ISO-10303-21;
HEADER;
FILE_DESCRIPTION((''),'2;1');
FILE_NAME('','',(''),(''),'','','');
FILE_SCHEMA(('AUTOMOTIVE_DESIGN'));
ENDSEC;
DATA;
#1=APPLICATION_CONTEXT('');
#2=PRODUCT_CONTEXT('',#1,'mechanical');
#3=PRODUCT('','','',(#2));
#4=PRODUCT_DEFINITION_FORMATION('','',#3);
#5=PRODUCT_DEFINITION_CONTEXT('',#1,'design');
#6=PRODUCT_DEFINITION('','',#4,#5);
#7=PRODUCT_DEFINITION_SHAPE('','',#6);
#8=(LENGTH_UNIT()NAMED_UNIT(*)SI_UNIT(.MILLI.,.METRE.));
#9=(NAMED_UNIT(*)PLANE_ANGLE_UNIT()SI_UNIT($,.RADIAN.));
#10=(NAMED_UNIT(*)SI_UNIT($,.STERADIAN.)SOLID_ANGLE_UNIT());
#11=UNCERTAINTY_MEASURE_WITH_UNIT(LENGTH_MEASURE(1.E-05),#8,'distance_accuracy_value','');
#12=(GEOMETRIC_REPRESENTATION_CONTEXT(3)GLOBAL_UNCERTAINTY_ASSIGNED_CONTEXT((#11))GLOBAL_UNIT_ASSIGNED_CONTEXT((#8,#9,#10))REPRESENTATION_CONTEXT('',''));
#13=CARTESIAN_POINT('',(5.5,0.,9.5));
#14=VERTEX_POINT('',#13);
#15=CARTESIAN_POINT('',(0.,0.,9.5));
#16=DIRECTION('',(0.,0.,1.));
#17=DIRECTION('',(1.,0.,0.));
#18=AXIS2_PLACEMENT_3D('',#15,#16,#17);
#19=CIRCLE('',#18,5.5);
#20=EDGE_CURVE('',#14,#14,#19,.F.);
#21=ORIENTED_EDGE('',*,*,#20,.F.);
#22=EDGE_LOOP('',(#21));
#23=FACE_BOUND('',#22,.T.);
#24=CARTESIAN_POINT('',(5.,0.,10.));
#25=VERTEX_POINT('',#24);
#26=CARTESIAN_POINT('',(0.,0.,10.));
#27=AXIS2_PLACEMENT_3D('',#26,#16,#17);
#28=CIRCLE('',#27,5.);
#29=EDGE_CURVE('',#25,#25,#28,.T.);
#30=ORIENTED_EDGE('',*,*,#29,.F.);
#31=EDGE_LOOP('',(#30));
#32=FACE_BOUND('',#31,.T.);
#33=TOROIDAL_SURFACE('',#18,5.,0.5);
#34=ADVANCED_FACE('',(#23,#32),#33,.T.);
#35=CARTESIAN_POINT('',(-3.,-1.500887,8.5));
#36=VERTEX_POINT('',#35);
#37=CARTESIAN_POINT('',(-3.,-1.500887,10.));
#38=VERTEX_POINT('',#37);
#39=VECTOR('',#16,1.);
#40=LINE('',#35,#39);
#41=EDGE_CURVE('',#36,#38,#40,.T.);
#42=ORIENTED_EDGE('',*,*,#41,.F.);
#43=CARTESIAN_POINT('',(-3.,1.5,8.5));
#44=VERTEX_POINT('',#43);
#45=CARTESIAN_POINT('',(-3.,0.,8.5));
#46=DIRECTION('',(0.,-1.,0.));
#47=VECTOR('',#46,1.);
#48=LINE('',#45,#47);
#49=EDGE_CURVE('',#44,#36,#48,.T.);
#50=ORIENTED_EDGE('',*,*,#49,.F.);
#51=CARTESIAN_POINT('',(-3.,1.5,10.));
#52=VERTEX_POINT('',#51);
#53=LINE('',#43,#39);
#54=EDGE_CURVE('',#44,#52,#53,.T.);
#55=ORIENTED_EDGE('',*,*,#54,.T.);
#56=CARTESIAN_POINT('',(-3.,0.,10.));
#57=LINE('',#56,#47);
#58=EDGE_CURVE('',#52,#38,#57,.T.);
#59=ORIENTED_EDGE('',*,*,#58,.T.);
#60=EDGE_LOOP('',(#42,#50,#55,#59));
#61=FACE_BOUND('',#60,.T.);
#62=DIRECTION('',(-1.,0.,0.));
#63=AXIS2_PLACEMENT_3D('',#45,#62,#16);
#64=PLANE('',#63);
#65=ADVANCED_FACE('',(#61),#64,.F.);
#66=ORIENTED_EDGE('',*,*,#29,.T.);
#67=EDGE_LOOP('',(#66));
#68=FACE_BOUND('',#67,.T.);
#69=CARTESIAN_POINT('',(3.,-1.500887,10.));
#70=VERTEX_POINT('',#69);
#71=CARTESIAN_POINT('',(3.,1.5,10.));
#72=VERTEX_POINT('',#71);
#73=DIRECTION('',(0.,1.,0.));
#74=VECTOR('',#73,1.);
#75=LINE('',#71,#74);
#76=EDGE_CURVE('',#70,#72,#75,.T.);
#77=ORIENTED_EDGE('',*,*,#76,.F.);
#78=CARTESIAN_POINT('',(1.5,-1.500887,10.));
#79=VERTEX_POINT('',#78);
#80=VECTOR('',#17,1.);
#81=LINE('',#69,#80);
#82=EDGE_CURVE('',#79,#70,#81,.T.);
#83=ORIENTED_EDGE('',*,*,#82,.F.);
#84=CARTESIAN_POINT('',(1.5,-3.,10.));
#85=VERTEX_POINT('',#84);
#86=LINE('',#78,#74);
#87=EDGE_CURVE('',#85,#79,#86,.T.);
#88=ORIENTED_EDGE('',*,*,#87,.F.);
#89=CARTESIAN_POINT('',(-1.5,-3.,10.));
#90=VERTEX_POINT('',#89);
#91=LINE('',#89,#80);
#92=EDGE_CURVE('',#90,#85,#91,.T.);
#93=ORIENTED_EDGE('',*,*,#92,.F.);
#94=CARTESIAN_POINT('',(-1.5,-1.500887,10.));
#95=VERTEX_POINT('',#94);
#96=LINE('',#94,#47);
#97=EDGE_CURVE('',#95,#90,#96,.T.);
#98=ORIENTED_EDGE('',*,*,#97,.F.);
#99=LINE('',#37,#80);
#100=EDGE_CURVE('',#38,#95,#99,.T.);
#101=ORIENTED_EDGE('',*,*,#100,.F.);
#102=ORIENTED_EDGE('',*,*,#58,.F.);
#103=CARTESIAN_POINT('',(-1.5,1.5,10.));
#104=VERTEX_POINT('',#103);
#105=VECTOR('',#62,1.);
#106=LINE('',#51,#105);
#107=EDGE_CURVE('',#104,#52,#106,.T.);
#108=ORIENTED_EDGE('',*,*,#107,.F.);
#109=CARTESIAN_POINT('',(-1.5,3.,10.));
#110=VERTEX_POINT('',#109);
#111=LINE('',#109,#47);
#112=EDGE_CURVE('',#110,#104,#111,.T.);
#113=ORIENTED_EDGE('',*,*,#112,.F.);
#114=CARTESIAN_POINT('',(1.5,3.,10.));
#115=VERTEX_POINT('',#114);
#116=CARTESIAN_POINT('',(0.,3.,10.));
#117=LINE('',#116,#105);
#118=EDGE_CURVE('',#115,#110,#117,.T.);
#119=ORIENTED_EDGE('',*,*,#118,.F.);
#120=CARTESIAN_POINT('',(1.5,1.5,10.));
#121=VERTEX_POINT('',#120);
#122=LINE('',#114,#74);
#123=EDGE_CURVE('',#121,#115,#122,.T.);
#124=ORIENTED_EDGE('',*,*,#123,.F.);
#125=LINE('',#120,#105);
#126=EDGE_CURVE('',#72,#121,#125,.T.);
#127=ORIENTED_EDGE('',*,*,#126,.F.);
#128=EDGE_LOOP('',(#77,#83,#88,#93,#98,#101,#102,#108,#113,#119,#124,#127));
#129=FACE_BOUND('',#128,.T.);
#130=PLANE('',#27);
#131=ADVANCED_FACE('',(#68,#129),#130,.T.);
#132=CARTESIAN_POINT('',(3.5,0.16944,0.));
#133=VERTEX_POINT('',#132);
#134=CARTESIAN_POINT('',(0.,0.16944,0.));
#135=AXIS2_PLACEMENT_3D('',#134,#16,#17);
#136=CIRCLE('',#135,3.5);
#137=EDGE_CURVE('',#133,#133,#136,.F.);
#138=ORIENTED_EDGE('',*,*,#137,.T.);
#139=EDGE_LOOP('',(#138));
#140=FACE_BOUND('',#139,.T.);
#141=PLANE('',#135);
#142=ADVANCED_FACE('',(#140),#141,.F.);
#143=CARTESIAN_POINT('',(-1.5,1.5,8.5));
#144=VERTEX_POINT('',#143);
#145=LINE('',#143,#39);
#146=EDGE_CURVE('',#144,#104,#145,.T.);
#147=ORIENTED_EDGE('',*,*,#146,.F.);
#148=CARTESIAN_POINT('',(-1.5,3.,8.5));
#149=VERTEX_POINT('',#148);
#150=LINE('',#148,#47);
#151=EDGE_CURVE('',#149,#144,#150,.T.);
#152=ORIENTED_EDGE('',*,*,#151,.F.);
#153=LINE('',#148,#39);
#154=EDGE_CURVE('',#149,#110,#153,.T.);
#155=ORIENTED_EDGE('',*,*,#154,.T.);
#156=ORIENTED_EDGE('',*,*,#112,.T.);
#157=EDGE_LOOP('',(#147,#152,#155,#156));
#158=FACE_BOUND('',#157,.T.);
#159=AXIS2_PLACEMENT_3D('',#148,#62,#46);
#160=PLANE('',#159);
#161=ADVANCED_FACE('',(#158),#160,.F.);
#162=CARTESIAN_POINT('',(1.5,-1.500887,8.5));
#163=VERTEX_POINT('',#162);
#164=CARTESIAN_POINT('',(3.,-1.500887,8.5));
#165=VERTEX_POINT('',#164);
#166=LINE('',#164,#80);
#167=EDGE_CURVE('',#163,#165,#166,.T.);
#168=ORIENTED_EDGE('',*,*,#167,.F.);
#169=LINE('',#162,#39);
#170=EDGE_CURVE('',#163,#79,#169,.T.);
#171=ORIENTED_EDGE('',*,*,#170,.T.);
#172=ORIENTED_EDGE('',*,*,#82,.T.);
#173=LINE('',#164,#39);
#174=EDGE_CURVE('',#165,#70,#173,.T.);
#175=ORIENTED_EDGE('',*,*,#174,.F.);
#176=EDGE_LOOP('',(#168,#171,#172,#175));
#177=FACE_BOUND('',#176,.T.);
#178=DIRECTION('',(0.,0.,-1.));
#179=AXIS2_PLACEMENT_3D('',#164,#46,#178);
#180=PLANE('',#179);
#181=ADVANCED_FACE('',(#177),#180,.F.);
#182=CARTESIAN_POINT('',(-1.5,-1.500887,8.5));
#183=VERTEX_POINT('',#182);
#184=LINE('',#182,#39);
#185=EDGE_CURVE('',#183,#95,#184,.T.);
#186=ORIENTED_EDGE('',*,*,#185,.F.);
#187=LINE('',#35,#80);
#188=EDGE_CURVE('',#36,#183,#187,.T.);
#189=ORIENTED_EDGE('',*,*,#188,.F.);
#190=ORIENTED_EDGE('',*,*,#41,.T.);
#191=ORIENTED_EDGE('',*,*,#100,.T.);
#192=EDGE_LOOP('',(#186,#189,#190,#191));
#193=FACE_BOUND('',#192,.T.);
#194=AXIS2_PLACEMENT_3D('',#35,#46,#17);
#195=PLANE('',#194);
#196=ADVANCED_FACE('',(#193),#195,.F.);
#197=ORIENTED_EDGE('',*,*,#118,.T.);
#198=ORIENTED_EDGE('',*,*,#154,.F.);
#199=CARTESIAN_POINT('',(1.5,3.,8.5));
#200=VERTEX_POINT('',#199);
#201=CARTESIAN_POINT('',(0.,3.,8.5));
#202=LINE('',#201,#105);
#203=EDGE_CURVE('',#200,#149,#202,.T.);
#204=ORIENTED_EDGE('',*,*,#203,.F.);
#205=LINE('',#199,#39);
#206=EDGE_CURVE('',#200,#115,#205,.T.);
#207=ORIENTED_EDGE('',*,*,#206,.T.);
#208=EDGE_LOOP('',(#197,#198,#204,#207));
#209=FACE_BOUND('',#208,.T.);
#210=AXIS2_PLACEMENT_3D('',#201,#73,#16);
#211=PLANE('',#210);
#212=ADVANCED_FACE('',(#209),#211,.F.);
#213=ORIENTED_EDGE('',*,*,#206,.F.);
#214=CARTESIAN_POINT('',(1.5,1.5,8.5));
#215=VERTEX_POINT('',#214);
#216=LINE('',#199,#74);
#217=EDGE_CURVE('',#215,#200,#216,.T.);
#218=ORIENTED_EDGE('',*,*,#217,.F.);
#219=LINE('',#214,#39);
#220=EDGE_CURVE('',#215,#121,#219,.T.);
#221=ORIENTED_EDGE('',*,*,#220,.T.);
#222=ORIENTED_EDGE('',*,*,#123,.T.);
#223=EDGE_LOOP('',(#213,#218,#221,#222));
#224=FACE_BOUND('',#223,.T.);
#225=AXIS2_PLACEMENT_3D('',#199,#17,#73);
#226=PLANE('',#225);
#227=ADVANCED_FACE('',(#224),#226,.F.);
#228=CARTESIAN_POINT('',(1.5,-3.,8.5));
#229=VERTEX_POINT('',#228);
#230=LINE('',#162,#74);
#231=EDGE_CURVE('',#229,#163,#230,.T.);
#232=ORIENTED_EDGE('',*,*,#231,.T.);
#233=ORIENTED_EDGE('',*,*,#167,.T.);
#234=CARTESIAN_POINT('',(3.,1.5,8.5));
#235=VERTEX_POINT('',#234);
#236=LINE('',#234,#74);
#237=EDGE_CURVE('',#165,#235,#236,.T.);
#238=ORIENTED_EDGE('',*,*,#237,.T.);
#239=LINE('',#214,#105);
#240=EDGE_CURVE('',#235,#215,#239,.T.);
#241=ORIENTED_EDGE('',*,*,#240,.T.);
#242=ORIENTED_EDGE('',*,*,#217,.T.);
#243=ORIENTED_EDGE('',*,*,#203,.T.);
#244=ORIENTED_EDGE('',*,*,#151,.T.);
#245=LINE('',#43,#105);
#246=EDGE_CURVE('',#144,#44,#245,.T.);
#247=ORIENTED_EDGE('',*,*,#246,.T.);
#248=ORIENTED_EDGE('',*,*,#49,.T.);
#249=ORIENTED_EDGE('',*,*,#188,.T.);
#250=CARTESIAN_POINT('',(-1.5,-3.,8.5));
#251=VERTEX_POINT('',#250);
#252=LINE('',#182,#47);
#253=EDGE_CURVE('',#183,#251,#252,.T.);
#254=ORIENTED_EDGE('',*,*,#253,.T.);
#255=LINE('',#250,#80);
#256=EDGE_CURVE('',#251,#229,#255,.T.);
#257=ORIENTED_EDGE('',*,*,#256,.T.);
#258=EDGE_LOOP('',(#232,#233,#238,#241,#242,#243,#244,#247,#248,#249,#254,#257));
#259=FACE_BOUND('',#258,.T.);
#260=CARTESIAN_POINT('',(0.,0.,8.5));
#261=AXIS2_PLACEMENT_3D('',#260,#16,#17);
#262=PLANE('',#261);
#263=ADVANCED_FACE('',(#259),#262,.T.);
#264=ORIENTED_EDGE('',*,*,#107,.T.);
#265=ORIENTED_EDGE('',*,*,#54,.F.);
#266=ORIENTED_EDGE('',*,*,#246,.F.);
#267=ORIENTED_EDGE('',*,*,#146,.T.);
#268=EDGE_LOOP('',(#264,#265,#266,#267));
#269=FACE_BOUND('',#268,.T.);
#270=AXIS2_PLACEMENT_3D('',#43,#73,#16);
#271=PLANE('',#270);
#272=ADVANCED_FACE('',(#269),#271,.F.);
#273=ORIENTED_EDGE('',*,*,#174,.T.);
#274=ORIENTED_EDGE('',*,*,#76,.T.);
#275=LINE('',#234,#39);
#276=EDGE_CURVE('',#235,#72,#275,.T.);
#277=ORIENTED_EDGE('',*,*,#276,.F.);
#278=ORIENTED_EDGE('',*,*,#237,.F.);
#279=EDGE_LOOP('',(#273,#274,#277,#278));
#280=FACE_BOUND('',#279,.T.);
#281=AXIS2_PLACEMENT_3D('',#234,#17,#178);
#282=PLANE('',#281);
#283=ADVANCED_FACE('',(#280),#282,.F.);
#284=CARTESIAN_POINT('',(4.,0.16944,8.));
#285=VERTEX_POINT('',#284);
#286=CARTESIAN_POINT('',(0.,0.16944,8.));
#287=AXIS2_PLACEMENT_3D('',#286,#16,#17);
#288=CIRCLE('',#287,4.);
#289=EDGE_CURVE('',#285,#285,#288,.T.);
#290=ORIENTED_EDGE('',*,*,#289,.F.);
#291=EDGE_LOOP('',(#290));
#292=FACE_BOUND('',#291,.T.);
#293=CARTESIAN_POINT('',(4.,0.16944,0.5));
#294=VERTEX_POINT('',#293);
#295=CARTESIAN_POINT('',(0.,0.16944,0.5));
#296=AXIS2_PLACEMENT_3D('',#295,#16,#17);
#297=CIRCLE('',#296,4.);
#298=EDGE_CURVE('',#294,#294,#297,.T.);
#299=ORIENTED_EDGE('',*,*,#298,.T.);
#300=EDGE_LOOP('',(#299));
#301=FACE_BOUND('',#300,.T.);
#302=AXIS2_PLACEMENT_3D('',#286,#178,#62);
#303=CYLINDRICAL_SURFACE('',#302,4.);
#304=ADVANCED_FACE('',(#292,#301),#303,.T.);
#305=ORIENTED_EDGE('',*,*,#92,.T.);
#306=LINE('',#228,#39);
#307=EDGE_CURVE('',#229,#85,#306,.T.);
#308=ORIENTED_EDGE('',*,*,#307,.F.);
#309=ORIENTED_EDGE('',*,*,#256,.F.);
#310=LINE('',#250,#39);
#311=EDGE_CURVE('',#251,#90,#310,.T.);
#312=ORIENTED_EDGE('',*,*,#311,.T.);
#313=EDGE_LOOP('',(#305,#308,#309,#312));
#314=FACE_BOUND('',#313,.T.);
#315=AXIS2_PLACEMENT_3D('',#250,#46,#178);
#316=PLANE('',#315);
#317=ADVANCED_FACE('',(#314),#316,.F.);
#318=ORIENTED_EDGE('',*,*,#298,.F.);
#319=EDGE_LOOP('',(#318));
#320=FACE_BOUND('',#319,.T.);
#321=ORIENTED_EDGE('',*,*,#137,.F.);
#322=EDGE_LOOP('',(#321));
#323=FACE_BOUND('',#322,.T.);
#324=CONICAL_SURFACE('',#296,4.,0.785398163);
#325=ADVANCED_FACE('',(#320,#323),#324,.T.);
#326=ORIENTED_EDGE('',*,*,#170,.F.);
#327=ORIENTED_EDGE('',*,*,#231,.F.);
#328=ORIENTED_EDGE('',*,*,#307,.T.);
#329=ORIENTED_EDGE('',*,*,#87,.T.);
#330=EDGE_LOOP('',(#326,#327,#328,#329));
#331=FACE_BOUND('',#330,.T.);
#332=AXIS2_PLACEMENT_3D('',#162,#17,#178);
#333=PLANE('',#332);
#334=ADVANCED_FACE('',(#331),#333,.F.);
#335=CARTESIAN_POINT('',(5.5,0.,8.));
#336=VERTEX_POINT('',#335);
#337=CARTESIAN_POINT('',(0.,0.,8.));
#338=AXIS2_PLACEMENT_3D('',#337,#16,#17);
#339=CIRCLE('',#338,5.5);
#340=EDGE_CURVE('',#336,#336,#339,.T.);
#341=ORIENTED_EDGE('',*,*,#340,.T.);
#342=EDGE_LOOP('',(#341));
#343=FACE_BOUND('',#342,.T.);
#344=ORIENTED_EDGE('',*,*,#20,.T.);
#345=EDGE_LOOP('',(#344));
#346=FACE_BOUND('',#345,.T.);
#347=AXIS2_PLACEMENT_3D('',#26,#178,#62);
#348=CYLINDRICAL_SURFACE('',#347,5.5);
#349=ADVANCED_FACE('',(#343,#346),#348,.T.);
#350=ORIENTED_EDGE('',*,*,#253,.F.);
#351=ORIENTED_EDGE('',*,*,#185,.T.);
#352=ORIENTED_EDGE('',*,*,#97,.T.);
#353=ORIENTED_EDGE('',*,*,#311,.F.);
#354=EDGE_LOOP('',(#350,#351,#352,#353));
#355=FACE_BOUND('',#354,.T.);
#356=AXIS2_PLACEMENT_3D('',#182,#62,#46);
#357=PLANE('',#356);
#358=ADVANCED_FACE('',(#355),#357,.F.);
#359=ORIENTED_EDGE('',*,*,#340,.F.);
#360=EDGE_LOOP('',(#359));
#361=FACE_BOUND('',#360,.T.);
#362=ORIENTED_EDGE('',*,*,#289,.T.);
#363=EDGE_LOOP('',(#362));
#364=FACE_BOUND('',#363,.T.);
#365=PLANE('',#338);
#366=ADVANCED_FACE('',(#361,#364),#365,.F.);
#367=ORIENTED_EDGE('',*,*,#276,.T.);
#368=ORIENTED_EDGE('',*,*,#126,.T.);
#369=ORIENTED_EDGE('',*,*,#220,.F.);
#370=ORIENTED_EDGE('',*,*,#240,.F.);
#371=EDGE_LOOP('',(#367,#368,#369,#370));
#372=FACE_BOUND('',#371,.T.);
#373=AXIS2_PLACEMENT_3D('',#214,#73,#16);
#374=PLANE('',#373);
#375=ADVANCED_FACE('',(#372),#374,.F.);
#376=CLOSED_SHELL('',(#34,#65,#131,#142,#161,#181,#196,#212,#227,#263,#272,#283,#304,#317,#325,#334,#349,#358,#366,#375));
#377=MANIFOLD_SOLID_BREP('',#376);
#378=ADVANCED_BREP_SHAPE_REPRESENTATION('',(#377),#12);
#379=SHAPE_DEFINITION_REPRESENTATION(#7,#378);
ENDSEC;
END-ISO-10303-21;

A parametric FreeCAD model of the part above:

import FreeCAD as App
import Part
import Sketcher

V = App.Vector


def edges_at(feature, points):
    """Names of the edges that pass closest to the given points."""
    edges = feature.Shape.Edges
    near = lambda p: min(range(len(edges)), key=lambda i: edges[i].distToShape(Part.Vertex(*p))[0])
    return sorted({f"Edge{near(p) + 1}" for p in points})


def add_polygon(sketch, points):
    """Adds a closed chain of lines whose ends are joined by coincident constraints."""
    first, n = sketch.GeometryCount, len(points)
    for a, b in zip(points, points[1:] + points[:1]):
        sketch.addGeometry(Part.LineSegment(App.Vector(*a, 0), App.Vector(*b, 0)), False)
    for i in range(n):
        sketch.addConstraint(Sketcher.Constraint("Coincident", first + i, 2, first + (i + 1) % n, 1))

doc = App.newDocument("Part")
body = doc.addObject("PartDesign::Body", "Body")

# Sketch on XY plane
sketch1 = body.newObject("Sketcher::SketchObject", "Sketch")
sketch1.AttachmentSupport = (doc.getObject("XY_Plane"), [""])
sketch1.MapMode = "FlatFace"
sketch1.addGeometry(Part.Circle(V(0, 0.16944, 0), V(0, 0, 1), 4), False)
sketch1.addConstraint([
    Sketcher.Constraint("PointOnObject", 0, 3, -2),
    Sketcher.Constraint("Diameter", 0, 8.0),
    Sketcher.Constraint("DistanceY", -1, 1, 0, 3, 0.16944),
])
pad1 = body.newObject("PartDesign::Pad", "Pad")
pad1.Profile = sketch1
pad1.Length = 8

# Sketch on XY plane
sketch2 = body.newObject("Sketcher::SketchObject", "Sketch001")
sketch2.AttachmentSupport = (doc.getObject("XY_Plane"), [""])
sketch2.MapMode = "FlatFace"
sketch2.AttachmentOffset = App.Placement(V(0, 0, 8), App.Rotation())
sketch2.addGeometry(Part.Circle(V(0, 0, 0), V(0, 0, 1), 5.5), False)
sketch2.addConstraint([
    Sketcher.Constraint("Coincident", 0, 3, -1, 1),
    Sketcher.Constraint("Diameter", 0, 11.0),
])
pad2 = body.newObject("PartDesign::Pad", "Pad001")
pad2.Profile = sketch2
pad2.Length = 2
doc.recompute()

chamfer = body.newObject("PartDesign::Chamfer", "Chamfer")
chamfer.Base = (pad2, edges_at(pad2, [(-4, 0.169, 0)]))
chamfer.Size = 0.5

# Sketch on XY plane
sketch3 = body.newObject("Sketcher::SketchObject", "Sketch002")
sketch3.AttachmentSupport = (doc.getObject("XY_Plane"), [""])
sketch3.MapMode = "FlatFace"
sketch3.AttachmentOffset = App.Placement(V(0, 0, 10), App.Rotation())
add_polygon(sketch3, [(3, 1.5), (1.5, 1.5), (1.5, 3), (-1.5, 3), (-1.5, 1.5), (-3, 1.5), (-3, -1.500887), (-1.5, -1.500887), (-1.5, -3), (1.5, -3), (1.5, -1.500887), (3, -1.500887)])  # lines 0-11
sketch3.addConstraint([
    Sketcher.Constraint("Horizontal", 0),
    Sketcher.Constraint("Vertical", 1),
    Sketcher.Constraint("Horizontal", 2),
    Sketcher.Constraint("Vertical", 3),
    Sketcher.Constraint("Horizontal", 4),
    Sketcher.Constraint("Vertical", 5),
    Sketcher.Constraint("Horizontal", 6),
    Sketcher.Constraint("Vertical", 7),
    Sketcher.Constraint("Horizontal", 8),
    Sketcher.Constraint("Vertical", 9),
    Sketcher.Constraint("Horizontal", 10),
    Sketcher.Constraint("Vertical", 11),
    Sketcher.Constraint("Symmetric", 1, 2, 7, 2, -1, 1),
    Sketcher.Constraint("Symmetric", 0, 2, 3, 2, -2),
    Sketcher.Constraint("Symmetric", 6, 2, 9, 2, -2),
    Sketcher.Constraint("Equal", 0, 4),
    Sketcher.Constraint("Equal", 10, 1),
    Sketcher.Constraint("DistanceX", 2, 2, 2, 1, 3.0),
    Sketcher.Constraint("DistanceX", 0, 2, 0, 1, 1.5),
    Sketcher.Constraint("DistanceY", -1, 1, 1, 2, 3.0),
    Sketcher.Constraint("DistanceY", 5, 2, 5, 1, 3.000887),
])
pocket1 = body.newObject("PartDesign::Pocket", "Pocket")
pocket1.Profile = sketch3
pocket1.Length = 1.5
doc.recompute()

fillet = body.newObject("PartDesign::Fillet", "Fillet")
fillet.Base = (pocket1, edges_at(pocket1, [(-5.5, 0, 10)]))
fillet.Radius = 0.5

doc.recompute()
